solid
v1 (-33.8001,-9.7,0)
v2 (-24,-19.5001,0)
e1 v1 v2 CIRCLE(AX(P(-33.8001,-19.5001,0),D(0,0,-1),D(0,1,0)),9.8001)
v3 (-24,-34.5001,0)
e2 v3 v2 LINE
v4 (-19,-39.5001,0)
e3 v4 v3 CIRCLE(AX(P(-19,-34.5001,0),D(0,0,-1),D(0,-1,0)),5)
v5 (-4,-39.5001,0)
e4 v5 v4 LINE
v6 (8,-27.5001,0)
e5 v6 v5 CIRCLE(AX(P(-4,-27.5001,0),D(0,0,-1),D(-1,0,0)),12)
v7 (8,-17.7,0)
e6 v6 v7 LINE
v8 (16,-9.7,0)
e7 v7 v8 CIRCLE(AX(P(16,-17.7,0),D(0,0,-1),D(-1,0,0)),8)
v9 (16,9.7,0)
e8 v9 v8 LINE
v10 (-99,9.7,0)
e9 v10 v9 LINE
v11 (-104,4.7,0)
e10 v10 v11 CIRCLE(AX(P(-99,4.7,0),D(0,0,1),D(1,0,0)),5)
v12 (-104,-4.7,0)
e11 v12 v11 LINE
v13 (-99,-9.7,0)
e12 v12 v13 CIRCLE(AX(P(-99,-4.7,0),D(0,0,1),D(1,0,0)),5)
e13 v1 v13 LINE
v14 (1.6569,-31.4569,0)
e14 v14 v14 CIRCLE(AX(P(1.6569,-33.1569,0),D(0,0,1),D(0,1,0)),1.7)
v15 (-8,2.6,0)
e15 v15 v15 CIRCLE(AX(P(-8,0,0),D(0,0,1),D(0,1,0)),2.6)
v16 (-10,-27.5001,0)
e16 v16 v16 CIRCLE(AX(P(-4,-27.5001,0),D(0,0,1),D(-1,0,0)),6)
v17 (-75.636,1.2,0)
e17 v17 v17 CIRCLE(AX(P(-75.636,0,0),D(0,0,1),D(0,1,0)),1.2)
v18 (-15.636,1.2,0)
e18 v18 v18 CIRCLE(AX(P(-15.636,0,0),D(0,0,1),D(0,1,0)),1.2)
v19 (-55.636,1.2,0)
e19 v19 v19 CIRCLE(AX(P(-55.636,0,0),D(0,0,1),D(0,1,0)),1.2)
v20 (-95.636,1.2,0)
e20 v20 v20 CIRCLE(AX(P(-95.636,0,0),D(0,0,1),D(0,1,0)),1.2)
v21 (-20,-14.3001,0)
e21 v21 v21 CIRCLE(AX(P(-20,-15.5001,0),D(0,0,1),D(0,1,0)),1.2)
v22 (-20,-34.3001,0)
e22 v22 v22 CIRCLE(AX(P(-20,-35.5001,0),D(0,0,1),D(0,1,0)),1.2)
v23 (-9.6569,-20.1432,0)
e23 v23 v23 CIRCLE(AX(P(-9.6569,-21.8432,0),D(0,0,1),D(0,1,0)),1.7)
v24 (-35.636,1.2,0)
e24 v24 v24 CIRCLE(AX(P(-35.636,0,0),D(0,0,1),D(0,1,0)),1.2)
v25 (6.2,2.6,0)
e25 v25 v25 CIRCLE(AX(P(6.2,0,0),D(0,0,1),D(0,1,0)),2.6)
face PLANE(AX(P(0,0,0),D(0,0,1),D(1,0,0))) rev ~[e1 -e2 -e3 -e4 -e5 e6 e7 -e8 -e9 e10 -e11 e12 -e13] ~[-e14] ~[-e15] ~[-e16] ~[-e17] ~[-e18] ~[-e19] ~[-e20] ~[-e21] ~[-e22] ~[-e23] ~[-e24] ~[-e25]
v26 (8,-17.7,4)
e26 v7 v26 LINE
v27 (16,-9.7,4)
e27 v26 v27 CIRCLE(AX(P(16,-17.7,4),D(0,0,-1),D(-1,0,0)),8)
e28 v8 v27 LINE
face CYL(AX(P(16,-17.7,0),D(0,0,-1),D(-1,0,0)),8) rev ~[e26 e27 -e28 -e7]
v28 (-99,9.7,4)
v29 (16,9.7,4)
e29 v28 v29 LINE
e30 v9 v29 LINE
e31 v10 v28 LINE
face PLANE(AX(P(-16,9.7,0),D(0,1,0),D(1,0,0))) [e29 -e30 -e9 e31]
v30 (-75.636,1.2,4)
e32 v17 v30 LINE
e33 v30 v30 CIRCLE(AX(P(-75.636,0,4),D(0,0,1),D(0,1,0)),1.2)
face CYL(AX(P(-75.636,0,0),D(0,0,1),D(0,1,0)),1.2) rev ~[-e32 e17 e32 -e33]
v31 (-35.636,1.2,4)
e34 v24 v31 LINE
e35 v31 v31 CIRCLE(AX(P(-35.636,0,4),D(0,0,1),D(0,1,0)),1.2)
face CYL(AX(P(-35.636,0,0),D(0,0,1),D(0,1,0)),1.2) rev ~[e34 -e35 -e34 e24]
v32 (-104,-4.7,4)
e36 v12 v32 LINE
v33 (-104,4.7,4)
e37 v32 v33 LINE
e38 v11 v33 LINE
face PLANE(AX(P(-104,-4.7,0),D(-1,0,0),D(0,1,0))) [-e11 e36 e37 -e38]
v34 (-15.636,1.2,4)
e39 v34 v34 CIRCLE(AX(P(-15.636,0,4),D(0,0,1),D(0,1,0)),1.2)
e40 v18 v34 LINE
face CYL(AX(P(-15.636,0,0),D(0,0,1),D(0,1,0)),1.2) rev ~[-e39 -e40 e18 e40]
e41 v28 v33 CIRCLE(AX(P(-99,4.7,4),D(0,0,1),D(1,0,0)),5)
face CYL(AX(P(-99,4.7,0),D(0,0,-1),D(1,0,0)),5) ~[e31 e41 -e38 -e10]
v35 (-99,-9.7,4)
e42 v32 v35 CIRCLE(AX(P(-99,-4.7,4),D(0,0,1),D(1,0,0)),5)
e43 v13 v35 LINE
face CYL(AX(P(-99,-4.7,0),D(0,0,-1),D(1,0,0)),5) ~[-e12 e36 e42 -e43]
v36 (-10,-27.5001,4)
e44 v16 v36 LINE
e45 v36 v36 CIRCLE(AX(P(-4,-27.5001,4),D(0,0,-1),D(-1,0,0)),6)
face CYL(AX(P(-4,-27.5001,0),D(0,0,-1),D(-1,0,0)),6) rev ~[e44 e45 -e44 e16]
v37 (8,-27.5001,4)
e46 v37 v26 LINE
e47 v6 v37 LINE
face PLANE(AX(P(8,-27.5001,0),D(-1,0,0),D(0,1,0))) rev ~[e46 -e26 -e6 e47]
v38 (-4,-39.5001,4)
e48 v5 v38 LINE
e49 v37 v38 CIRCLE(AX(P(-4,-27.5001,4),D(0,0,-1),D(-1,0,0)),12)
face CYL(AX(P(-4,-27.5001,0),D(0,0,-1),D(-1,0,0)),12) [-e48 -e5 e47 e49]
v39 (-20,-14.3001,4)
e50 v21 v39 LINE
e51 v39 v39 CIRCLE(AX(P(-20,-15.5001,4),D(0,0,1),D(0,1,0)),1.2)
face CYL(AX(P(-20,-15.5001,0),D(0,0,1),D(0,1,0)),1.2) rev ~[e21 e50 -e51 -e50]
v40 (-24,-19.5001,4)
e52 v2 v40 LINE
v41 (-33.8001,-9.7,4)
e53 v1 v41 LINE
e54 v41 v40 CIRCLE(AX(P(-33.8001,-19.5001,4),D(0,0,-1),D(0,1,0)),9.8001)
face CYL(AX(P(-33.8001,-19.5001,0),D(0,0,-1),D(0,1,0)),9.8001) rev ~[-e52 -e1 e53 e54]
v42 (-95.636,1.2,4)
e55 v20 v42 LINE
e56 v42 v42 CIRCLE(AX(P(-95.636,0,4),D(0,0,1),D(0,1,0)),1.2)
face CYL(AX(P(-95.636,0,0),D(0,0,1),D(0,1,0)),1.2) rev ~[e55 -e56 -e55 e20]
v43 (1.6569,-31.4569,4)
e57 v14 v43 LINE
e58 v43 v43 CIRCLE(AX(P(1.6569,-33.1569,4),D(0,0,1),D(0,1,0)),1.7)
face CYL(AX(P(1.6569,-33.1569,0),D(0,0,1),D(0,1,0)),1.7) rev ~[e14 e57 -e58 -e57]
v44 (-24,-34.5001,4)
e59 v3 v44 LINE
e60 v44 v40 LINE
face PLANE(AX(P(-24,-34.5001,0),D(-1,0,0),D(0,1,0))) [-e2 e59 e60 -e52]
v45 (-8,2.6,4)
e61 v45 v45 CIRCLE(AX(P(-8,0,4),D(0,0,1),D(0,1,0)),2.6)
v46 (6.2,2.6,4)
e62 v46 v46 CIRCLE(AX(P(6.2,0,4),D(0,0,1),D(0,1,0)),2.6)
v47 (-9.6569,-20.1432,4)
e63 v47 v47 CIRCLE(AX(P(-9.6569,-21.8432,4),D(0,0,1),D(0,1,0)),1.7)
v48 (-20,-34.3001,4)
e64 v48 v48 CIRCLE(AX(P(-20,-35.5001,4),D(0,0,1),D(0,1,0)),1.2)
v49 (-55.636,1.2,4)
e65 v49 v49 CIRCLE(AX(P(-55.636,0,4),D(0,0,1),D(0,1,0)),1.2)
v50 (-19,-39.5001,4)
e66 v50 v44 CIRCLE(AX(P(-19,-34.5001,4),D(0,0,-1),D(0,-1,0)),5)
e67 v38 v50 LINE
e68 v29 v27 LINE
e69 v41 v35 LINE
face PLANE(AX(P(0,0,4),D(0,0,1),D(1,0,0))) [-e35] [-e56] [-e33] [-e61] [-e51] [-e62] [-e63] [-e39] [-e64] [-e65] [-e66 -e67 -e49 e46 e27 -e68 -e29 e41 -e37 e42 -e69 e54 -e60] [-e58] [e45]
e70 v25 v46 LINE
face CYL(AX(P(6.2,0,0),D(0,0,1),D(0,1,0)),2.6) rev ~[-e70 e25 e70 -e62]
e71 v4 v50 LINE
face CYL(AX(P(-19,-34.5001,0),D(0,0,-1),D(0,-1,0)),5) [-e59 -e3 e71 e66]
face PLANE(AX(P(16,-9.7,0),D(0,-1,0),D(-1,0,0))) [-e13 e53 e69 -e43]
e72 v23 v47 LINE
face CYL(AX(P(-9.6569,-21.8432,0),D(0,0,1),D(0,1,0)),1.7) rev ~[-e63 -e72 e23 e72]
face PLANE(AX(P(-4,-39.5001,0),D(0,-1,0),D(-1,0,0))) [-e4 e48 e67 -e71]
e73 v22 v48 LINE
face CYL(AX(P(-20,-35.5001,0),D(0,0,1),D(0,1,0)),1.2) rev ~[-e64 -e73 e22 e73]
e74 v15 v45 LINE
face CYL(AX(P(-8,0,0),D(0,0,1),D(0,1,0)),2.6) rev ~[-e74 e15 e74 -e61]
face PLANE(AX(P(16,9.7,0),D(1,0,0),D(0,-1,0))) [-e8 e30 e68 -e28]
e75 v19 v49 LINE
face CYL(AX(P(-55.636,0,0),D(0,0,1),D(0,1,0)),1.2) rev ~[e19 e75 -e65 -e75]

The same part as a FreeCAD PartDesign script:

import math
import FreeCAD as App
import Part
import Sketcher

doc = App.newDocument("Part")
params = doc.addObject("Spreadsheet::Sheet", "Params")
for row, (alias, value) in enumerate([
    ("sketch1_radius", "5 mm"),
    ("sketch1_height", "19.4 mm"),
    ("pad1_length", "4 mm"),
    ("sketch2_diameter", "5.2 mm"),
    ("hole_diameter", "5.2 mm"),
    ("hole_depth", "5.5 mm"),
    ("sketch3_diameter", "2.4 mm"),
    ("hole2_diameter", "2.4 mm"),
    ("hole2_depth", "5.5 mm"),
    ("sketch4_diameter", "12 mm"),
    ("sketch4_radius", "12 mm"),
    ("sketch4_radius2", "5 mm"),
    ("sketch4_radius3", "8 mm"),
    ("sketch4_width", "15 mm"),
    ("pad2_length", "4 mm"),
    ("sketch5_diameter", "3.4 mm"),
    ("hole3_diameter", "3.4 mm"),
    ("hole3_depth", "5.5 mm"),
    ("sketch6_diameter", "2.4 mm"),
    ("hole4_diameter", "2.4 mm"),
    ("hole4_depth", "5.5 mm"),
], start=1):
    params.set(f"A{row}", alias)
    params.set(f"B{row}", "=" + value)
    params.setAlias(f"B{row}", alias)

body = doc.addObject("PartDesign::Body", "Body")

# Sketch on XY plane
sketch1 = body.newObject("Sketcher::SketchObject", "Sketch")
sketch1.AttachmentSupport = (doc.getObject("XY_Plane"), [""])
sketch1.MapMode = "FlatFace"
sketch1.addGeometry([
    Part.LineSegment(App.Vector(16, -10, 0), App.Vector(16, 10, 0)),  # 0
    Part.LineSegment(App.Vector(16, 10, 0), App.Vector(-99, 10, 0)),  # 1
    Part.ArcOfCircle(Part.Circle(App.Vector(-99, 5, 0), App.Vector(0, 0, 1), 5), math.radians(90), math.radians(180)),  # 2
    Part.LineSegment(App.Vector(-104, 5, 0), App.Vector(-104, -5, 0)),  # 3
    Part.ArcOfCircle(Part.Circle(App.Vector(-99, -5, 0), App.Vector(0, 0, 1), 5), math.radians(180), math.radians(270)),  # 4
    Part.LineSegment(App.Vector(-99, -10, 0), App.Vector(16, -10, 0)),  # 5
], False)
sketch1.addConstraint([
    Sketcher.Constraint("Coincident", 0, 2, 1, 1),
    Sketcher.Constraint("Tangent", 1, 2, 2, 1),
    Sketcher.Constraint("Tangent", 2, 2, 3, 1),
    Sketcher.Constraint("Tangent", 3, 2, 4, 1),
    Sketcher.Constraint("Tangent", 4, 2, 5, 1),
    Sketcher.Constraint("Coincident", 5, 2, 0, 1),
    Sketcher.Constraint("Vertical", 0),
    Sketcher.Constraint("Horizontal", 1),
    Sketcher.Constraint("Vertical", 3),
    Sketcher.Constraint("Horizontal", 5),
    Sketcher.Constraint("Equal", 2, 4),
    Sketcher.Constraint("Radius", 2, 5.0),
    Sketcher.Constraint("DistanceY", 0, 1, 0, 2, 19.4),
    Sketcher.Constraint("DistanceX", 2, 2, 0, 2, 120.0),
    Sketcher.Constraint("DistanceX", 2, 3, -1, 1, 99.0),
    Sketcher.Constraint("DistanceY", -1, 1, 2, 3, 4.7),
])
sketch1.setExpression("Constraints[11]", "Params.sketch1_radius")
sketch1.setExpression("Constraints[12]", "Params.sketch1_height")
pad1 = body.newObject("PartDesign::Pad", "Pad")
pad1.Profile = sketch1
pad1.setExpression("Length", "Params.pad1_length")

# Sketch on XY plane
sketch2 = body.newObject("Sketcher::SketchObject", "Sketch001")
sketch2.AttachmentSupport = (doc.getObject("XY_Plane"), [""])
sketch2.MapMode = "FlatFace"
sketch2.addGeometry([
    Part.Circle(App.Vector(6.2, 0, 0), App.Vector(0, 0, 1), 2.6),
    Part.Circle(App.Vector(-8, 0, 0), App.Vector(0, 0, 1), 2.6),
], False)
sketch2.addConstraint([
    Sketcher.Constraint("Equal", 0, 1),
    Sketcher.Constraint("PointOnObject", 0, 3, -1),
    Sketcher.Constraint("PointOnObject", 1, 3, -1),
    Sketcher.Constraint("Diameter", 0, 5.2),
    Sketcher.Constraint("DistanceX", 1, 3, -1, 1, 8.0),
    Sketcher.Constraint("DistanceX", -1, 1, 0, 3, 6.2),
])
sketch2.setExpression("Constraints[3]", "Params.sketch2_diameter")
doc.recompute()
hole = body.newObject("PartDesign::Hole", "Hole")
hole.Profile = sketch2
hole.ThreadType = "None"
hole.setExpression("Diameter", "Params.hole_diameter")
hole.DepthType = "Dimension"
hole.setExpression("Depth", "Params.hole_depth")
hole.DrillPoint = "Flat"
hole.Reversed = True

# Sketch on XY plane
sketch3 = body.newObject("Sketcher::SketchObject", "Sketch002")
sketch3.AttachmentSupport = (doc.getObject("XY_Plane"), [""])
sketch3.MapMode = "FlatFace"
sketch3.addGeometry([
    Part.Circle(App.Vector(-15.6, 0, 0), App.Vector(0, 0, 1), 1.2),  # 0
    Part.Circle(App.Vector(-35.6, 0, 0), App.Vector(0, 0, 1), 1.2),  # 1
    Part.Circle(App.Vector(-55.6, 0, 0), App.Vector(0, 0, 1), 1.2),  # 2
    Part.Circle(App.Vector(-75.6, 0, 0), App.Vector(0, 0, 1), 1.2),  # 3
    Part.Circle(App.Vector(-95.6, 0, 0), App.Vector(0, 0, 1), 1.2),  # 4
], False)
sketch3.addConstraint([
    Sketcher.Constraint("Equal", 0, 1),
    Sketcher.Constraint("Equal", 1, 2),
    Sketcher.Constraint("Equal", 2, 3),
    Sketcher.Constraint("Equal", 3, 4),
    Sketcher.Constraint("PointOnObject", 0, 3, -1),
    Sketcher.Constraint("PointOnObject", 1, 3, -1),
    Sketcher.Constraint("PointOnObject", 2, 3, -1),
    Sketcher.Constraint("PointOnObject", 3, 3, -1),
    Sketcher.Constraint("PointOnObject", 4, 3, -1),
    Sketcher.Constraint("Diameter", 0, 2.4),
    Sketcher.Constraint("DistanceX", 1, 3, 0, 3, 20.0),
    Sketcher.Constraint("DistanceX", 2, 3, 1, 3, 20.0),
    Sketcher.Constraint("DistanceX", 3, 3, 2, 3, 20.0),
    Sketcher.Constraint("DistanceX", 4, 3, 3, 3, 20.0),
    Sketcher.Constraint("DistanceX", 0, 3, -1, 1, 15.636),
])
sketch3.setExpression("Constraints[9]", "Params.sketch3_diameter")
doc.recompute()
hole2 = body.newObject("PartDesign::Hole", "Hole001")
hole2.Profile = sketch3
hole2.ThreadType = "None"
hole2.setExpression("Diameter", "Params.hole2_diameter")
hole2.DepthType = "Dimension"
hole2.setExpression("Depth", "Params.hole2_depth")
hole2.DrillPoint = "Flat"
hole2.Reversed = True

# Sketch on XY plane
sketch4 = body.newObject("Sketcher::SketchObject", "Sketch003")
sketch4.AttachmentSupport = (doc.getObject("XY_Plane"), [""])
sketch4.MapMode = "FlatFace"
sketch4.addGeometry([
    Part.ArcOfCircle(Part.Circle(App.Vector(-4, -28, 0), App.Vector(0, 0, 1), 12), math.radians(-90), math.radians(0)),  # 0
    Part.LineSegment(App.Vector(-4, -40, 0), App.Vector(-19, -40, 0)),  # 1
    Part.ArcOfCircle(Part.Circle(App.Vector(-19, -35, 0), App.Vector(0, 0, 1), 5), math.radians(180), math.radians(270)),  # 2
    Part.LineSegment(App.Vector(-24, -35, 0), App.Vector(-24, -20, 0)),  # 3
    Part.ArcOfCircle(Part.Circle(App.Vector(-34, -20, 0), App.Vector(0, 0, 1), 10), math.radians(0), math.radians(90)),  # 4
    Part.LineSegment(App.Vector(-34, -10, 0), App.Vector(16, -10, 0)),  # 5
    Part.ArcOfCircle(Part.Circle(App.Vector(16, -18, 0), App.Vector(0, 0, 1), 8), math.radians(90), math.radians(180)),  # 6
    Part.LineSegment(App.Vector(8, -18, 0), App.Vector(8, -28, 0)),  # 7
    Part.Circle(App.Vector(-4, -28, 0), App.Vector(0, 0, 1), 6),  # 8
], False)
sketch4.addConstraint([
    Sketcher.Constraint("Tangent", 0, 1, 1, 1),
    Sketcher.Constraint("Tangent", 1, 2, 2, 2),
    Sketcher.Constraint("Tangent", 2, 1, 3, 1),
    Sketcher.Constraint("Tangent", 3, 2, 4, 1),
    Sketcher.Constraint("Tangent", 4, 2, 5, 1),
    Sketcher.Constraint("Tangent", 5, 2, 6, 1),
    Sketcher.Constraint("Tangent", 6, 2, 7, 1),
    Sketcher.Constraint("Tangent", 7, 2, 0, 2),
    Sketcher.Constraint("Horizontal", 1),
    Sketcher.Constraint("Vertical", 3),
    Sketcher.Constraint("Horizontal", 5),
    Sketcher.Constraint("Vertical", 7),
    Sketcher.Constraint("Coincident", 8, 3, 0, 3),
    Sketcher.Constraint("Equal", 1, 3),
    Sketcher.Constraint("Diameter", 8, 12.0),
    Sketcher.Constraint("Radius", 0, 12.0),
    Sketcher.Constraint("Radius", 2, 5.0),
    Sketcher.Constraint("Radius", 6, 8.0),
    Sketcher.Constraint("DistanceX", 1, 2, 1, 1, 15.0),
    Sketcher.Constraint("DistanceX", 2, 1, -1, 1, 24.0),
    Sketcher.Constraint("Radius", 4, 9.8),
    Sketcher.Constraint("DistanceY", 0, 3, -1, 1, 27.5),
])
sketch4.setExpression("Constraints[14]", "Params.sketch4_diameter")
sketch4.setExpression("Constraints[15]", "Params.sketch4_radius")
sketch4.setExpression("Constraints[16]", "Params.sketch4_radius2")
sketch4.setExpression("Constraints[17]", "Params.sketch4_radius3")
sketch4.setExpression("Constraints[18]", "Params.sketch4_width")
pad2 = body.newObject("PartDesign::Pad", "Pad001")
pad2.Profile = sketch4
pad2.setExpression("Length", "Params.pad2_length")

# Sketch on XY plane
sketch5 = body.newObject("Sketcher::SketchObject", "Sketch004")
sketch5.AttachmentSupport = (doc.getObject("XY_Plane"), [""])
sketch5.MapMode = "FlatFace"
sketch5.addGeometry([
    Part.Circle(App.Vector(1.7, -33.2, 0), App.Vector(0, 0, 1), 1.7),
    Part.Circle(App.Vector(-9.7, -21.8, 0), App.Vector(0, 0, 1), 1.7),
], False)
sketch5.addConstraint([
    Sketcher.Constraint("Equal", 0, 1),
    Sketcher.Constraint("Diameter", 0, 3.4),
    Sketcher.Constraint("DistanceX", -1, 1, 0, 3, 1.657),
    Sketcher.Constraint("DistanceY", 0, 3, -1, 1, 33.157),
    Sketcher.Constraint("DistanceX", 1, 3, -1, 1, 9.657),
    Sketcher.Constraint("DistanceY", 1, 3, -1, 1, 21.8432),
])
sketch5.setExpression("Constraints[1]", "Params.sketch5_diameter")
doc.recompute()
hole3 = body.newObject("PartDesign::Hole", "Hole002")
hole3.Profile = sketch5
hole3.ThreadType = "None"
hole3.setExpression("Diameter", "Params.hole3_diameter")
hole3.DepthType = "Dimension"
hole3.setExpression("Depth", "Params.hole3_depth")
hole3.DrillPoint = "Flat"
hole3.Reversed = True

# Sketch on XY plane
sketch6 = body.newObject("Sketcher::SketchObject", "Sketch005")
sketch6.AttachmentSupport = (doc.getObject("XY_Plane"), [""])
sketch6.MapMode = "FlatFace"
sketch6.addGeometry([
    Part.Circle(App.Vector(-20, -35.5, 0), App.Vector(0, 0, 1), 1.2),
    Part.Circle(App.Vector(-20, -15.5, 0), App.Vector(0, 0, 1), 1.2),
], False)
sketch6.addConstraint([
    Sketcher.Constraint("Equal", 0, 1),
    Sketcher.Constraint("Vertical", 0, 3, 1, 3),
    Sketcher.Constraint("Diameter", 0, 2.4),
    Sketcher.Constraint("DistanceX", 0, 3, -1, 1, 20.0),
    Sketcher.Constraint("DistanceY", 0, 3, 1, 3, 20.0),
    Sketcher.Constraint("DistanceY", 0, 3, -1, 1, 35.5),
])
sketch6.setExpression("Constraints[2]", "Params.sketch6_diameter")
doc.recompute()
hole4 = body.newObject("PartDesign::Hole", "Hole003")
hole4.Profile = sketch6
hole4.ThreadType = "None"
hole4.setExpression("Diameter", "Params.hole4_diameter")
hole4.DepthType = "Dimension"
hole4.setExpression("Depth", "Params.hole4_depth")
hole4.DrillPoint = "Flat"
hole4.Reversed = True

doc.recompute()
